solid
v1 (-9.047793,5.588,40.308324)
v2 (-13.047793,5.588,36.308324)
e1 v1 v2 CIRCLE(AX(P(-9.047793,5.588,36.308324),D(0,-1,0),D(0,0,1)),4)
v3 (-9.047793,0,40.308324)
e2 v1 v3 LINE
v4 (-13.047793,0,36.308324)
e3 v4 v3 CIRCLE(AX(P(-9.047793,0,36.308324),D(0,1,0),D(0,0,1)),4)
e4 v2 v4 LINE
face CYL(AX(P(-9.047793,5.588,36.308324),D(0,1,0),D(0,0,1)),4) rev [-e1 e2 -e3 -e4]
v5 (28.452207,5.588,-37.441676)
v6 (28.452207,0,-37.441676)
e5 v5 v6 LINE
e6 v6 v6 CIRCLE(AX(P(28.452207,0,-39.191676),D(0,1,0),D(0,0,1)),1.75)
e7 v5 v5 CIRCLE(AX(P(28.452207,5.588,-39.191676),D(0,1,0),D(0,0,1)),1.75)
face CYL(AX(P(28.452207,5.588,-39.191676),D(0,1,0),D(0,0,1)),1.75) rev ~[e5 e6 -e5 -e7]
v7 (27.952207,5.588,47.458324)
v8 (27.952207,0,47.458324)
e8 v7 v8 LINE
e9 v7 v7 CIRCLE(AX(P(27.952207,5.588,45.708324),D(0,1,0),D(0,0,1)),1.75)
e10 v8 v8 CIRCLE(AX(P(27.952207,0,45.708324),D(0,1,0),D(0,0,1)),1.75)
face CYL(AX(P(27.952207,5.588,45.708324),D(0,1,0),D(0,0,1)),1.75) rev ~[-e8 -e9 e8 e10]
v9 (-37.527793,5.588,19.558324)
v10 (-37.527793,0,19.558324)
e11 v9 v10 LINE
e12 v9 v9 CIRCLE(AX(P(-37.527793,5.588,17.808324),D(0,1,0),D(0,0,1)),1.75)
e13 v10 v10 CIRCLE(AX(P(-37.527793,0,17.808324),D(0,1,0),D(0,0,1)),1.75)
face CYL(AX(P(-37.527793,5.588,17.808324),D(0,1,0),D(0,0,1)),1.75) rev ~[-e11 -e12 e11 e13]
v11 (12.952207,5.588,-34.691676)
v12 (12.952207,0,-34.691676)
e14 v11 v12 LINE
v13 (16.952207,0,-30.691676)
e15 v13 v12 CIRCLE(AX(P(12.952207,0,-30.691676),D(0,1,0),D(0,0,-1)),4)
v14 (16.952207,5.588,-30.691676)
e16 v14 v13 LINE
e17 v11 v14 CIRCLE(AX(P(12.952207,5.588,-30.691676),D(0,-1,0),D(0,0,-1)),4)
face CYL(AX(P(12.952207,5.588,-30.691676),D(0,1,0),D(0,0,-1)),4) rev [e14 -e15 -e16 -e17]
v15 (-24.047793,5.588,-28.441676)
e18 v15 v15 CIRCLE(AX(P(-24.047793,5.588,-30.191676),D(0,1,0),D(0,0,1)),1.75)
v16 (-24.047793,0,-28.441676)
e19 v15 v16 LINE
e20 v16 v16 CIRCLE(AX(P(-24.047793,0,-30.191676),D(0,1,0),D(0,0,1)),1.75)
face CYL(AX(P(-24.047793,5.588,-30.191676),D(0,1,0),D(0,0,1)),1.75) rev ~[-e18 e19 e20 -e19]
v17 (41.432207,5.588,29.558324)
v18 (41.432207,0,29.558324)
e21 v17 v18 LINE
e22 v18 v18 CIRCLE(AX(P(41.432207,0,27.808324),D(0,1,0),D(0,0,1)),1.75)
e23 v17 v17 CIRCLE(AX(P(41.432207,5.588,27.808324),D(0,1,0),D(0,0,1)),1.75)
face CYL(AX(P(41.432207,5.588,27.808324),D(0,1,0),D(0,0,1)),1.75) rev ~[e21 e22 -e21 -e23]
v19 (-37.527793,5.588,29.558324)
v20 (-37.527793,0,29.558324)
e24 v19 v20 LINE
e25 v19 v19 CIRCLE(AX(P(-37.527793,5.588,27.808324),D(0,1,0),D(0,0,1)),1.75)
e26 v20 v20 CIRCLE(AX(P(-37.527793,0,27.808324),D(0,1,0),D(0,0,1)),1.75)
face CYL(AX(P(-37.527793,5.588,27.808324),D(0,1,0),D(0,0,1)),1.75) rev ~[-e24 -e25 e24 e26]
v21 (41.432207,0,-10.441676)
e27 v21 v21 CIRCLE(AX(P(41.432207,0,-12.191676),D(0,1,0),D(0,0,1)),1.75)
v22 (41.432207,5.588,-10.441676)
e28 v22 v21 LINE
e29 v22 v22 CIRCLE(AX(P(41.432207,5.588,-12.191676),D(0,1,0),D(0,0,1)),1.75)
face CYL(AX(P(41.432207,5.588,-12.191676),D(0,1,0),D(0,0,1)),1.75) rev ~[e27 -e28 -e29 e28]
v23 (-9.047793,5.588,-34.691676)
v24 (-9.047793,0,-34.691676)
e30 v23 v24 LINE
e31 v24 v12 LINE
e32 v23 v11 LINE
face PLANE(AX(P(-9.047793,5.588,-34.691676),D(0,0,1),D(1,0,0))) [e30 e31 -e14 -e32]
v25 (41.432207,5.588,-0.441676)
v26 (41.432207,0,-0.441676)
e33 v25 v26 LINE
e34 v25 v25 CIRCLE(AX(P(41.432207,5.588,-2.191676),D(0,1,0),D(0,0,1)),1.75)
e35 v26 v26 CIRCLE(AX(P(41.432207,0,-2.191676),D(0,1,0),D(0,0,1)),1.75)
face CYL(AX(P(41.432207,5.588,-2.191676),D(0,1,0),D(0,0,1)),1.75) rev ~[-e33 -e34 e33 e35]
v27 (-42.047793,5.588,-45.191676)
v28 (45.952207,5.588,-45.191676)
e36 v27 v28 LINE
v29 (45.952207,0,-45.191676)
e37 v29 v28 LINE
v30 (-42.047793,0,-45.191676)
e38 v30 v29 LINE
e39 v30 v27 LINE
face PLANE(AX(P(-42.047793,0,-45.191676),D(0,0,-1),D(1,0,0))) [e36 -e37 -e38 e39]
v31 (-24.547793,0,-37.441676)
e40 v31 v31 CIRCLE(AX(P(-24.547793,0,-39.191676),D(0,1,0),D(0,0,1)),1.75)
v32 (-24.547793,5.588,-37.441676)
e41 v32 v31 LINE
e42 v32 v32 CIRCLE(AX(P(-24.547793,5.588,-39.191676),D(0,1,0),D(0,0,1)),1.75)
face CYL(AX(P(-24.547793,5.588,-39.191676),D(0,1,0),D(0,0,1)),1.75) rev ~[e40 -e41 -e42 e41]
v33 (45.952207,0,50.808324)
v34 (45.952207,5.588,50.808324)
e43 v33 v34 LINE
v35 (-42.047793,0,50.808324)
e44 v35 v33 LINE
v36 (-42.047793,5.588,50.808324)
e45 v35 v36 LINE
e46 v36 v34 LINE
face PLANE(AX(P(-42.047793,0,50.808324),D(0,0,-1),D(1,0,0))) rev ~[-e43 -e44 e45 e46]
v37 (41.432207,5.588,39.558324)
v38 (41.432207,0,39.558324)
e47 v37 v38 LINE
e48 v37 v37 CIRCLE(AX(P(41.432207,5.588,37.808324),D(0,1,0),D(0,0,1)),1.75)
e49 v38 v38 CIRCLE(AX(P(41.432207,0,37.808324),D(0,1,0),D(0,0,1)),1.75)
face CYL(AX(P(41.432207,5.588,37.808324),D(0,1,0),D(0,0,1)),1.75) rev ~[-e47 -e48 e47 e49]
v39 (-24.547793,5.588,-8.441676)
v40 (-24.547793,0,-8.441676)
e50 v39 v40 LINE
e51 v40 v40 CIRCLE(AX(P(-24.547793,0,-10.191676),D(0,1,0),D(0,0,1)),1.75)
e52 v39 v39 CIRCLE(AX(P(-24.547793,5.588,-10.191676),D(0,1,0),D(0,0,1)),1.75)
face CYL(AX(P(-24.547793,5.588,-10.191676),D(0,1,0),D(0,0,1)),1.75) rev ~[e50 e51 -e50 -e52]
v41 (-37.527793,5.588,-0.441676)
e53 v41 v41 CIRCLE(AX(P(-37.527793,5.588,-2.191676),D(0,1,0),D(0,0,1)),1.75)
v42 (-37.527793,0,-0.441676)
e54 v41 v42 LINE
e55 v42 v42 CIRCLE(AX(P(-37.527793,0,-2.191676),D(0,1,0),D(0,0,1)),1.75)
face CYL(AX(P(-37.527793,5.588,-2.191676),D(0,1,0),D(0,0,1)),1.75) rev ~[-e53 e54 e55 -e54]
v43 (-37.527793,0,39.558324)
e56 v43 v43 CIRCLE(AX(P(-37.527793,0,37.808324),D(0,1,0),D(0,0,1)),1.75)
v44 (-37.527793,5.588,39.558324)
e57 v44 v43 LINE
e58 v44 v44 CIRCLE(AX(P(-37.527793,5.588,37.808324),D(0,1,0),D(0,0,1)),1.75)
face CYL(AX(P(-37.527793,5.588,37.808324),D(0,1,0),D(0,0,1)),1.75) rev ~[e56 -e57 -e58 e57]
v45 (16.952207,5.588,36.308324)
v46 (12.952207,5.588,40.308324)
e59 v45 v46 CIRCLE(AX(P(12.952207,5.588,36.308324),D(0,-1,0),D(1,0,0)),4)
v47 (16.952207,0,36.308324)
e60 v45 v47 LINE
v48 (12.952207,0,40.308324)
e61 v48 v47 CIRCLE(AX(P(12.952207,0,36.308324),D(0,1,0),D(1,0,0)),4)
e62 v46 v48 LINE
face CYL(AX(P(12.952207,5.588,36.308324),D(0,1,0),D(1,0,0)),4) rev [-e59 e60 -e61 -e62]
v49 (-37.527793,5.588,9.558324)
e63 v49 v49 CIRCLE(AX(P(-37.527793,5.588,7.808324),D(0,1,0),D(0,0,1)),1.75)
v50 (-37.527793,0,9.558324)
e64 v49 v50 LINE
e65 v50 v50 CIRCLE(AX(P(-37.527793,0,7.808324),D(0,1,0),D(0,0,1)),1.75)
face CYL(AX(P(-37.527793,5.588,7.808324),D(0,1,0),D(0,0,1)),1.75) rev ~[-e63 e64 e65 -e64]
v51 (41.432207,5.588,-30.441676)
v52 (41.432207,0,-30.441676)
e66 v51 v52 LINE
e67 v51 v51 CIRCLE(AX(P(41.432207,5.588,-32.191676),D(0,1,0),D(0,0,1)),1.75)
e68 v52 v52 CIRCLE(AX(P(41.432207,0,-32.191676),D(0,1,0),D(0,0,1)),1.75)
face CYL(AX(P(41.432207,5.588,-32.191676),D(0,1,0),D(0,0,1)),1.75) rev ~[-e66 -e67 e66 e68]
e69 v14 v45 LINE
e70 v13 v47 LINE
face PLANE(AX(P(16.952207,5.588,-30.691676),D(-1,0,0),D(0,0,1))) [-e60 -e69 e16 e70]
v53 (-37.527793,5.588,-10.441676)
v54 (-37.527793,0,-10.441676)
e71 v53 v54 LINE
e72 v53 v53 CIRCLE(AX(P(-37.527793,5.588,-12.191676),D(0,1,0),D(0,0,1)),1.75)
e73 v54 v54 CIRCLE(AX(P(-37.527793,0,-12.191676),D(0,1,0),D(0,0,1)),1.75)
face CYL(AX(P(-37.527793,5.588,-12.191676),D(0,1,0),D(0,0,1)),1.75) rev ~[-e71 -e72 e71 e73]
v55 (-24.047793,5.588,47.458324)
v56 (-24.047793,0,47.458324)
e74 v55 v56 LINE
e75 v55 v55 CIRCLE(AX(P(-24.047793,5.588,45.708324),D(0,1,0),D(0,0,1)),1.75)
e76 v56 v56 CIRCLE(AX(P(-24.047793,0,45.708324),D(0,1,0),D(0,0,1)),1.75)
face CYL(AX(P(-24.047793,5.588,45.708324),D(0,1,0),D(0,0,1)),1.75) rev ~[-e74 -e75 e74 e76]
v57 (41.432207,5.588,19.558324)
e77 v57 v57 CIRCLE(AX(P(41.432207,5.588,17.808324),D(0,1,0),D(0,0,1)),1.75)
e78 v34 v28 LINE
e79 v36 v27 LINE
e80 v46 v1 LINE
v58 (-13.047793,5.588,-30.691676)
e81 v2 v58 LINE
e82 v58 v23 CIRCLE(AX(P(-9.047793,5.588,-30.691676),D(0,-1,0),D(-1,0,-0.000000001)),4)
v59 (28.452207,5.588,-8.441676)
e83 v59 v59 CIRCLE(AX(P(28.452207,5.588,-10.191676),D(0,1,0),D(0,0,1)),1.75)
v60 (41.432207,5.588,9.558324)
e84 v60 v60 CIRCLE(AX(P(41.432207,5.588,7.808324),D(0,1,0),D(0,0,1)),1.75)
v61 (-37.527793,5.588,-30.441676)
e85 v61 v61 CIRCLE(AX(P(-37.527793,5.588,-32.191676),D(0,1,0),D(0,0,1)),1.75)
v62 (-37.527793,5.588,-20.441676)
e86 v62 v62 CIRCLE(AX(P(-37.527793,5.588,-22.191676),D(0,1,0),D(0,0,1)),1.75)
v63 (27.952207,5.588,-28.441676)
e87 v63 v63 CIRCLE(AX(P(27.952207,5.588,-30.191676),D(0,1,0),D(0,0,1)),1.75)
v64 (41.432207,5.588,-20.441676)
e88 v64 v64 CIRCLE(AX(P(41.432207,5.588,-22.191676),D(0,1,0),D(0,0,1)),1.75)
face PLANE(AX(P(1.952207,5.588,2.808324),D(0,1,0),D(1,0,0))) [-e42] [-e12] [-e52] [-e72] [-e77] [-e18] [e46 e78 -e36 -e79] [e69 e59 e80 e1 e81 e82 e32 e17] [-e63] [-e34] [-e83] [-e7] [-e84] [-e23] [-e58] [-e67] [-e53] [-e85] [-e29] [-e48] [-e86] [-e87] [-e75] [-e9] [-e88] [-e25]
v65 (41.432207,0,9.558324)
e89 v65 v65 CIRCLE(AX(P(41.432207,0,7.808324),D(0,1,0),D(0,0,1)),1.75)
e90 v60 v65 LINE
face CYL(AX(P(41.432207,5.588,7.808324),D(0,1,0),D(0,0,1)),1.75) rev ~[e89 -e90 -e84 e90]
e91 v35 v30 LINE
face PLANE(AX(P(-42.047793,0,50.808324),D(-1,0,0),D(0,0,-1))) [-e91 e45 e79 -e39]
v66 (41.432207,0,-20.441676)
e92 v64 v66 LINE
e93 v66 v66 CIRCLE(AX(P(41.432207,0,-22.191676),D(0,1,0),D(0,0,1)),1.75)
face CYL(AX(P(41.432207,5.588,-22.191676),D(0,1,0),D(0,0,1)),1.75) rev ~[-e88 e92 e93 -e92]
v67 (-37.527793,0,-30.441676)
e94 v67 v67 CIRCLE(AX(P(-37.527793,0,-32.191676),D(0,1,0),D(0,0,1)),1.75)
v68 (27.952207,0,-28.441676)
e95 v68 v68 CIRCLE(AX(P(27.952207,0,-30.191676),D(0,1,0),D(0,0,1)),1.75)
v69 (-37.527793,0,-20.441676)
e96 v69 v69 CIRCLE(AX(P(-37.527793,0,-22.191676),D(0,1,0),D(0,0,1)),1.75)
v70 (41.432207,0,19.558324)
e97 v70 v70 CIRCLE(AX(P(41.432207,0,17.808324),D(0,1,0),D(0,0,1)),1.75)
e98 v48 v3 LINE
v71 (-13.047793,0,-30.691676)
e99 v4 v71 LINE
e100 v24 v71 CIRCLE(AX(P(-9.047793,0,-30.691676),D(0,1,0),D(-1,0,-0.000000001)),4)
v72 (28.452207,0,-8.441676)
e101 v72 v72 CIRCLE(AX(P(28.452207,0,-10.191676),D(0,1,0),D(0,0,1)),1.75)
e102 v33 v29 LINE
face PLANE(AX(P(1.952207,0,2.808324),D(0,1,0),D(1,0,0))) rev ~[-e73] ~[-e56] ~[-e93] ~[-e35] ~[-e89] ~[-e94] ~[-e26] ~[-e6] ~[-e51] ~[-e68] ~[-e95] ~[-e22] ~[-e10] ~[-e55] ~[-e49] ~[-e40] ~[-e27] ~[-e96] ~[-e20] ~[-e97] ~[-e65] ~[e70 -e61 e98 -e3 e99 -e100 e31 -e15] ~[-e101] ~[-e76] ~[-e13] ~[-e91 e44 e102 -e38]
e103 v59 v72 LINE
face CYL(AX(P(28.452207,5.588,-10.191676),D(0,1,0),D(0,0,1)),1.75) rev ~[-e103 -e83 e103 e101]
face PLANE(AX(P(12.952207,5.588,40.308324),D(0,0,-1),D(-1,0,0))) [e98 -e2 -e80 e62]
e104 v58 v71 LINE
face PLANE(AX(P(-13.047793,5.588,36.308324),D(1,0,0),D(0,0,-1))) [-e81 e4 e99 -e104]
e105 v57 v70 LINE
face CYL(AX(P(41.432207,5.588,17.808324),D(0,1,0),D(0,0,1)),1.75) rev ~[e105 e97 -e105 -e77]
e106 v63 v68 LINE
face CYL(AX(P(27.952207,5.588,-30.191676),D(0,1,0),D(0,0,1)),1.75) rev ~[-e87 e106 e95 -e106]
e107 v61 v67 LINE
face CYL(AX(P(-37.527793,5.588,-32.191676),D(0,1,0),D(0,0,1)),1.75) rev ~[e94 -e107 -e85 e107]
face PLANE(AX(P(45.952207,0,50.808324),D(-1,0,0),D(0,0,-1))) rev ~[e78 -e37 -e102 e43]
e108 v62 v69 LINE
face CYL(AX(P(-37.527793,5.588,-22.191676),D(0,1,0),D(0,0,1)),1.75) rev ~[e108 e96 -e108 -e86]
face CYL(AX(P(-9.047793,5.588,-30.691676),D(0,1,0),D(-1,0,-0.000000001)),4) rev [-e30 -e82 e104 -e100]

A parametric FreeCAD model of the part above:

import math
import FreeCAD as App
import Part
import Sketcher
from FreeCAD import Vector
Q = App.Units.Quantity

doc = App.newDocument("Part")
body = doc.addObject("PartDesign::Body", "Body")

sketch1 = doc.addObject("Sketcher::SketchObject", "Sketch")
body.addObject(sketch1)
sketch1.AttachmentSupport = (doc.XZ_Plane, [""])
sketch1.MapMode = "FlatFace"
sketch1.addGeometry([
    Part.LineSegment(Vector(-42.047793, -45.191676, 0), Vector(-42.047793, 50.808324, 0)),
    Part.LineSegment(Vector(-42.047793, 50.808324, 0), Vector(45.952207, 50.808324, 0)),
    Part.LineSegment(Vector(45.952207, 50.808324, 0), Vector(45.952207, -45.191676, 0)),
    Part.LineSegment(Vector(45.952207, -45.191676, 0), Vector(-42.047793, -45.191676, 0)),
], False)
sketch1.addConstraint([
    Sketcher.Constraint("Coincident", 0, 2, 1, 1),
    Sketcher.Constraint("Coincident", 1, 2, 2, 1),
    Sketcher.Constraint("Coincident", 2, 2, 3, 1),
    Sketcher.Constraint("Coincident", 3, 2, 0, 1),
    Sketcher.Constraint("Vertical", 0),
    Sketcher.Constraint("Horizontal", 1),
    Sketcher.Constraint("Vertical", 2),
    Sketcher.Constraint("Horizontal", 3),
    Sketcher.Constraint("DistanceX", 1, 1, 1, 2, Q("88 mm")),
    Sketcher.Constraint("DistanceY", 0, 1, 0, 2, Q("96 mm")),
    Sketcher.Constraint("DistanceX", 0, 2, -1, 1, Q("42.047793 mm")),
    Sketcher.Constraint("DistanceY", -1, 1, 0, 2, Q("50.808324 mm")),
])
pad1 = doc.addObject("PartDesign::Pad", "Pad")
body.addObject(pad1)
pad1.Profile = sketch1
pad1.Length = 5.588
pad1.Reversed = True

sketch2 = doc.addObject("Sketcher::SketchObject", "Sketch001")
body.addObject(sketch2)
sketch2.AttachmentSupport = (doc.XZ_Plane, [""])
sketch2.MapMode = "FlatFace"
sketch2.AttachmentOffset = App.Placement(Vector(0, 0, -5.588), App.Rotation())
sketch2.addGeometry([
    Part.Circle(Vector(-24.047793, -30.191676, 0), Vector(0, 0, 1), 1.75),
    Part.Circle(Vector(27.952207, -30.191676, 0), Vector(0, 0, 1), 1.75),
    Part.Circle(Vector(-24.047793, 45.708324, 0), Vector(0, 0, 1), 1.75),
    Part.Circle(Vector(27.952207, 45.708324, 0), Vector(0, 0, 1), 1.75),
    Part.Circle(Vector(-24.547793, -39.191676, 0), Vector(0, 0, 1), 1.75),
    Part.Circle(Vector(28.452207, -39.191676, 0), Vector(0, 0, 1), 1.75),
    Part.Circle(Vector(-24.547793, -10.191676, 0), Vector(0, 0, 1), 1.75),
    Part.Circle(Vector(28.452207, -10.191676, 0), Vector(0, 0, 1), 1.75),
], False)
sketch2.addConstraint([
    Sketcher.Constraint("Equal", 0, 1),
    Sketcher.Constraint("Equal", 1, 2),
    Sketcher.Constraint("Equal", 2, 3),
    Sketcher.Constraint("Equal", 3, 4),
    Sketcher.Constraint("Equal", 4, 5),
    Sketcher.Constraint("Equal", 5, 6),
    Sketcher.Constraint("Equal", 6, 7),
    Sketcher.Constraint("Horizontal", 0, 3, 1, 3),
    Sketcher.Constraint("Horizontal", 2, 3, 3, 3),
    Sketcher.Constraint("Horizontal", 4, 3, 5, 3),
    Sketcher.Constraint("Horizontal", 6, 3, 7, 3),
    Sketcher.Constraint("Vertical", 0, 3, 2, 3),
    Sketcher.Constraint("Vertical", 1, 3, 3, 3),
    Sketcher.Constraint("Vertical", 4, 3, 6, 3),
    Sketcher.Constraint("Vertical", 5, 3, 7, 3),
    Sketcher.Constraint("Diameter", 0, Q("3.5 mm")),
    Sketcher.Constraint("DistanceX", 0, 3, 1, 3, Q("52 mm")),
    Sketcher.Constraint("DistanceY", 4, 3, 0, 3, Q("9 mm")),
    Sketcher.Constraint("DistanceX", 4, 3, 5, 3, Q("53 mm")),
    Sketcher.Constraint("DistanceY", 0, 3, 6, 3, Q("20 mm")),
    Sketcher.Constraint("DistanceY", 0, 3, 2, 3, Q("75.9 mm")),
    Sketcher.Constraint("DistanceX", 4, 3, 0, 3, Q("0.5 mm")),
    Sketcher.Constraint("DistanceX", 0, 3, -1, 1, Q("24.047793 mm")),
    Sketcher.Constraint("DistanceY", 0, 3, -1, 1, Q("30.191676 mm")),
])
pocket1 = doc.addObject("PartDesign::Pocket", "Pocket")
body.addObject(pocket1)
pocket1.Profile = sketch2
pocket1.Type = "ThroughAll"
pocket1.Reversed = True

sketch3 = doc.addObject("Sketcher::SketchObject", "Sketch002")
body.addObject(sketch3)
sketch3.AttachmentSupport = (doc.XZ_Plane, [""])
sketch3.MapMode = "FlatFace"
sketch3.AttachmentOffset = App.Placement(Vector(0, 0, -5.588), App.Rotation())
sketch3.addGeometry([
    Part.LineSegment(Vector(12.952207, -34.691676, 0), Vector(-9.047793, -34.691676, 0)),
    Part.ArcOfCircle(Part.Circle(Vector(-9.047793, -30.691676, 0), Vector(0, 0, 1), 4), math.radians(-180), math.radians(-90)),
    Part.LineSegment(Vector(-13.047793, -30.691676, 0), Vector(-13.047793, 36.308324, 0)),
    Part.ArcOfCircle(Part.Circle(Vector(-9.047793, 36.308324, 0), Vector(0, 0, 1), 4), math.radians(90), math.radians(180)),
    Part.LineSegment(Vector(-9.047793, 40.308324, 0), Vector(12.952207, 40.308324, 0)),
    Part.ArcOfCircle(Part.Circle(Vector(12.952207, 36.308324, 0), Vector(0, 0, 1), 4), math.radians(0), math.radians(90)),
    Part.LineSegment(Vector(16.952207, 36.308324, 0), Vector(16.952207, -30.691676, 0)),
    Part.ArcOfCircle(Part.Circle(Vector(12.952207, -30.691676, 0), Vector(0, 0, 1), 4), math.radians(-90), math.radians(0)),
], False)
sketch3.addConstraint([
    Sketcher.Constraint("Tangent", 0, 2, 1, 2),
    Sketcher.Constraint("Tangent", 1, 1, 2, 1),
    Sketcher.Constraint("Tangent", 2, 2, 3, 2),
    Sketcher.Constraint("Tangent", 3, 1, 4, 1),
    Sketcher.Constraint("Tangent", 4, 2, 5, 2),
    Sketcher.Constraint("Tangent", 5, 1, 6, 1),
    Sketcher.Constraint("Tangent", 6, 2, 7, 2),
    Sketcher.Constraint("Tangent", 7, 1, 0, 1),
    Sketcher.Constraint("Horizontal", 0),
    Sketcher.Constraint("Vertical", 2),
    Sketcher.Constraint("Horizontal", 4),
    Sketcher.Constraint("Vertical", 6),
    Sketcher.Constraint("Equal", 1, 3),
    Sketcher.Constraint("Equal", 3, 5),
    Sketcher.Constraint("Equal", 5, 7),
    Sketcher.Constraint("Radius", 1, Q("4 mm")),
    Sketcher.Constraint("DistanceX", 0, 2, 0, 1, Q("22 mm")),
    Sketcher.Constraint("DistanceY", 2, 1, 2, 2, Q("67 mm")),
    Sketcher.Constraint("DistanceX", 1, 3, -1, 1, Q("9.047793 mm")),
    Sketcher.Constraint("DistanceY", 1, 3, -1, 1, Q("30.691676 mm")),
])
pocket2 = doc.addObject("PartDesign::Pocket", "Pocket001")
body.addObject(pocket2)
pocket2.Profile = sketch3
pocket2.Type = "ThroughAll"
pocket2.Reversed = True

sketch4 = doc.addObject("Sketcher::SketchObject", "Sketch003")
body.addObject(sketch4)
sketch4.AttachmentSupport = (doc.XZ_Plane, [""])
sketch4.MapMode = "FlatFace"
sketch4.AttachmentOffset = App.Placement(Vector(0, 0, -5.588), App.Rotation())
sketch4.addGeometry([
    Part.Circle(Vector(-37.527793, -32.191676, 0), Vector(0, 0, 1), 1.75),
    Part.Circle(Vector(41.432207, -32.191676, 0), Vector(0, 0, 1), 1.75),
    Part.Circle(Vector(-37.527793, -22.191676, 0), Vector(0, 0, 1), 1.75),
    Part.Circle(Vector(41.432207, -22.191676, 0), Vector(0, 0, 1), 1.75),
    Part.Circle(Vector(-37.527793, -12.191676, 0), Vector(0, 0, 1), 1.75),
    Part.Circle(Vector(41.432207, -12.191676, 0), Vector(0, 0, 1), 1.75),
    Part.Circle(Vector(-37.527793, -2.191676, 0), Vector(0, 0, 1), 1.75),
    Part.Circle(Vector(41.432207, -2.191676, 0), Vector(0, 0, 1), 1.75),
    Part.Circle(Vector(-37.527793, 7.808324, 0), Vector(0, 0, 1), 1.75),
    Part.Circle(Vector(41.432207, 7.808324, 0), Vector(0, 0, 1), 1.75),
    Part.Circle(Vector(-37.527793, 17.808324, 0), Vector(0, 0, 1), 1.75),
    Part.Circle(Vector(41.432207, 17.808324, 0), Vector(0, 0, 1), 1.75),
    Part.Circle(Vector(-37.527793, 27.808324, 0), Vector(0, 0, 1), 1.75),
    Part.Circle(Vector(41.432207, 27.808324, 0), Vector(0, 0, 1), 1.75),
    Part.Circle(Vector(-37.527793, 37.808324, 0), Vector(0, 0, 1), 1.75),
    Part.Circle(Vector(41.432207, 37.808324, 0), Vector(0, 0, 1), 1.75),
], False)
sketch4.addConstraint([
    Sketcher.Constraint("Equal", 0, 1),
    Sketcher.Constraint("Equal", 1, 2),
    Sketcher.Constraint("Equal", 2, 3),
    Sketcher.Constraint("Equal", 3, 4),
    Sketcher.Constraint("Equal", 4, 5),
    Sketcher.Constraint("Equal", 5, 6),
    Sketcher.Constraint("Equal", 6, 7),
    Sketcher.Constraint("Equal", 7, 8),
    Sketcher.Constraint("Equal", 8, 9),
    Sketcher.Constraint("Equal", 9, 10),
    Sketcher.Constraint("Equal", 10, 11),
    Sketcher.Constraint("Equal", 11, 12),
    Sketcher.Constraint("Equal", 12, 13),
    Sketcher.Constraint("Equal", 13, 14),
    Sketcher.Constraint("Equal", 14, 15),
    Sketcher.Constraint("Horizontal", 0, 3, 1, 3),
    Sketcher.Constraint("Horizontal", 2, 3, 3, 3),
    Sketcher.Constraint("Horizontal", 4, 3, 5, 3),
    Sketcher.Constraint("Horizontal", 6, 3, 7, 3),
    Sketcher.Constraint("Horizontal", 8, 3, 9, 3),
    Sketcher.Constraint("Horizontal", 10, 3, 11, 3),
    Sketcher.Constraint("Horizontal", 12, 3, 13, 3),
    Sketcher.Constraint("Horizontal", 14, 3, 15, 3),
    Sketcher.Constraint("Vertical", 0, 3, 2, 3),
    Sketcher.Constraint("Vertical", 1, 3, 3, 3),
    Sketcher.Constraint("Vertical", 2, 3, 4, 3),
    Sketcher.Constraint("Vertical", 3, 3, 5, 3),
    Sketcher.Constraint("Vertical", 4, 3, 6, 3),
    Sketcher.Constraint("Vertical", 5, 3, 7, 3),
    Sketcher.Constraint("Vertical", 6, 3, 8, 3),
    Sketcher.Constraint("Vertical", 7, 3, 9, 3),
    Sketcher.Constraint("Vertical", 8, 3, 10, 3),
    Sketcher.Constraint("Vertical", 9, 3, 11, 3),
    Sketcher.Constraint("Vertical", 10, 3, 12, 3),
    Sketcher.Constraint("Vertical", 11, 3, 13, 3),
    Sketcher.Constraint("Vertical", 12, 3, 14, 3),
    Sketcher.Constraint("Vertical", 13, 3, 15, 3),
    Sketcher.Constraint("Diameter", 0, Q("3.5 mm")),
    Sketcher.Constraint("DistanceY", 0, 3, 2, 3, Q("10 mm")),
    Sketcher.Constraint("DistanceY", 2, 3, 4, 3, Q("10 mm")),
    Sketcher.Constraint("DistanceY", 4, 3, 6, 3, Q("10 mm")),
    Sketcher.Constraint("DistanceY", 6, 3, 8, 3, Q("10 mm")),
    Sketcher.Constraint("DistanceY", 8, 3, 10, 3, Q("10 mm")),
    Sketcher.Constraint("DistanceY", 10, 3, 12, 3, Q("10 mm")),
    Sketcher.Constraint("DistanceY", 12, 3, 14, 3, Q("10 mm")),
    Sketcher.Constraint("DistanceX", 0, 3, 1, 3, Q("78.96 mm")),
    Sketcher.Constraint("DistanceX", 0, 3, -1, 1, Q("37.527793 mm")),
    Sketcher.Constraint("DistanceY", 0, 3, -1, 1, Q("32.191676 mm")),
])
pocket3 = doc.addObject("PartDesign::Pocket", "Pocket002")
body.addObject(pocket3)
pocket3.Profile = sketch4
pocket3.Type = "ThroughAll"
pocket3.Reversed = True

doc.recompute()
